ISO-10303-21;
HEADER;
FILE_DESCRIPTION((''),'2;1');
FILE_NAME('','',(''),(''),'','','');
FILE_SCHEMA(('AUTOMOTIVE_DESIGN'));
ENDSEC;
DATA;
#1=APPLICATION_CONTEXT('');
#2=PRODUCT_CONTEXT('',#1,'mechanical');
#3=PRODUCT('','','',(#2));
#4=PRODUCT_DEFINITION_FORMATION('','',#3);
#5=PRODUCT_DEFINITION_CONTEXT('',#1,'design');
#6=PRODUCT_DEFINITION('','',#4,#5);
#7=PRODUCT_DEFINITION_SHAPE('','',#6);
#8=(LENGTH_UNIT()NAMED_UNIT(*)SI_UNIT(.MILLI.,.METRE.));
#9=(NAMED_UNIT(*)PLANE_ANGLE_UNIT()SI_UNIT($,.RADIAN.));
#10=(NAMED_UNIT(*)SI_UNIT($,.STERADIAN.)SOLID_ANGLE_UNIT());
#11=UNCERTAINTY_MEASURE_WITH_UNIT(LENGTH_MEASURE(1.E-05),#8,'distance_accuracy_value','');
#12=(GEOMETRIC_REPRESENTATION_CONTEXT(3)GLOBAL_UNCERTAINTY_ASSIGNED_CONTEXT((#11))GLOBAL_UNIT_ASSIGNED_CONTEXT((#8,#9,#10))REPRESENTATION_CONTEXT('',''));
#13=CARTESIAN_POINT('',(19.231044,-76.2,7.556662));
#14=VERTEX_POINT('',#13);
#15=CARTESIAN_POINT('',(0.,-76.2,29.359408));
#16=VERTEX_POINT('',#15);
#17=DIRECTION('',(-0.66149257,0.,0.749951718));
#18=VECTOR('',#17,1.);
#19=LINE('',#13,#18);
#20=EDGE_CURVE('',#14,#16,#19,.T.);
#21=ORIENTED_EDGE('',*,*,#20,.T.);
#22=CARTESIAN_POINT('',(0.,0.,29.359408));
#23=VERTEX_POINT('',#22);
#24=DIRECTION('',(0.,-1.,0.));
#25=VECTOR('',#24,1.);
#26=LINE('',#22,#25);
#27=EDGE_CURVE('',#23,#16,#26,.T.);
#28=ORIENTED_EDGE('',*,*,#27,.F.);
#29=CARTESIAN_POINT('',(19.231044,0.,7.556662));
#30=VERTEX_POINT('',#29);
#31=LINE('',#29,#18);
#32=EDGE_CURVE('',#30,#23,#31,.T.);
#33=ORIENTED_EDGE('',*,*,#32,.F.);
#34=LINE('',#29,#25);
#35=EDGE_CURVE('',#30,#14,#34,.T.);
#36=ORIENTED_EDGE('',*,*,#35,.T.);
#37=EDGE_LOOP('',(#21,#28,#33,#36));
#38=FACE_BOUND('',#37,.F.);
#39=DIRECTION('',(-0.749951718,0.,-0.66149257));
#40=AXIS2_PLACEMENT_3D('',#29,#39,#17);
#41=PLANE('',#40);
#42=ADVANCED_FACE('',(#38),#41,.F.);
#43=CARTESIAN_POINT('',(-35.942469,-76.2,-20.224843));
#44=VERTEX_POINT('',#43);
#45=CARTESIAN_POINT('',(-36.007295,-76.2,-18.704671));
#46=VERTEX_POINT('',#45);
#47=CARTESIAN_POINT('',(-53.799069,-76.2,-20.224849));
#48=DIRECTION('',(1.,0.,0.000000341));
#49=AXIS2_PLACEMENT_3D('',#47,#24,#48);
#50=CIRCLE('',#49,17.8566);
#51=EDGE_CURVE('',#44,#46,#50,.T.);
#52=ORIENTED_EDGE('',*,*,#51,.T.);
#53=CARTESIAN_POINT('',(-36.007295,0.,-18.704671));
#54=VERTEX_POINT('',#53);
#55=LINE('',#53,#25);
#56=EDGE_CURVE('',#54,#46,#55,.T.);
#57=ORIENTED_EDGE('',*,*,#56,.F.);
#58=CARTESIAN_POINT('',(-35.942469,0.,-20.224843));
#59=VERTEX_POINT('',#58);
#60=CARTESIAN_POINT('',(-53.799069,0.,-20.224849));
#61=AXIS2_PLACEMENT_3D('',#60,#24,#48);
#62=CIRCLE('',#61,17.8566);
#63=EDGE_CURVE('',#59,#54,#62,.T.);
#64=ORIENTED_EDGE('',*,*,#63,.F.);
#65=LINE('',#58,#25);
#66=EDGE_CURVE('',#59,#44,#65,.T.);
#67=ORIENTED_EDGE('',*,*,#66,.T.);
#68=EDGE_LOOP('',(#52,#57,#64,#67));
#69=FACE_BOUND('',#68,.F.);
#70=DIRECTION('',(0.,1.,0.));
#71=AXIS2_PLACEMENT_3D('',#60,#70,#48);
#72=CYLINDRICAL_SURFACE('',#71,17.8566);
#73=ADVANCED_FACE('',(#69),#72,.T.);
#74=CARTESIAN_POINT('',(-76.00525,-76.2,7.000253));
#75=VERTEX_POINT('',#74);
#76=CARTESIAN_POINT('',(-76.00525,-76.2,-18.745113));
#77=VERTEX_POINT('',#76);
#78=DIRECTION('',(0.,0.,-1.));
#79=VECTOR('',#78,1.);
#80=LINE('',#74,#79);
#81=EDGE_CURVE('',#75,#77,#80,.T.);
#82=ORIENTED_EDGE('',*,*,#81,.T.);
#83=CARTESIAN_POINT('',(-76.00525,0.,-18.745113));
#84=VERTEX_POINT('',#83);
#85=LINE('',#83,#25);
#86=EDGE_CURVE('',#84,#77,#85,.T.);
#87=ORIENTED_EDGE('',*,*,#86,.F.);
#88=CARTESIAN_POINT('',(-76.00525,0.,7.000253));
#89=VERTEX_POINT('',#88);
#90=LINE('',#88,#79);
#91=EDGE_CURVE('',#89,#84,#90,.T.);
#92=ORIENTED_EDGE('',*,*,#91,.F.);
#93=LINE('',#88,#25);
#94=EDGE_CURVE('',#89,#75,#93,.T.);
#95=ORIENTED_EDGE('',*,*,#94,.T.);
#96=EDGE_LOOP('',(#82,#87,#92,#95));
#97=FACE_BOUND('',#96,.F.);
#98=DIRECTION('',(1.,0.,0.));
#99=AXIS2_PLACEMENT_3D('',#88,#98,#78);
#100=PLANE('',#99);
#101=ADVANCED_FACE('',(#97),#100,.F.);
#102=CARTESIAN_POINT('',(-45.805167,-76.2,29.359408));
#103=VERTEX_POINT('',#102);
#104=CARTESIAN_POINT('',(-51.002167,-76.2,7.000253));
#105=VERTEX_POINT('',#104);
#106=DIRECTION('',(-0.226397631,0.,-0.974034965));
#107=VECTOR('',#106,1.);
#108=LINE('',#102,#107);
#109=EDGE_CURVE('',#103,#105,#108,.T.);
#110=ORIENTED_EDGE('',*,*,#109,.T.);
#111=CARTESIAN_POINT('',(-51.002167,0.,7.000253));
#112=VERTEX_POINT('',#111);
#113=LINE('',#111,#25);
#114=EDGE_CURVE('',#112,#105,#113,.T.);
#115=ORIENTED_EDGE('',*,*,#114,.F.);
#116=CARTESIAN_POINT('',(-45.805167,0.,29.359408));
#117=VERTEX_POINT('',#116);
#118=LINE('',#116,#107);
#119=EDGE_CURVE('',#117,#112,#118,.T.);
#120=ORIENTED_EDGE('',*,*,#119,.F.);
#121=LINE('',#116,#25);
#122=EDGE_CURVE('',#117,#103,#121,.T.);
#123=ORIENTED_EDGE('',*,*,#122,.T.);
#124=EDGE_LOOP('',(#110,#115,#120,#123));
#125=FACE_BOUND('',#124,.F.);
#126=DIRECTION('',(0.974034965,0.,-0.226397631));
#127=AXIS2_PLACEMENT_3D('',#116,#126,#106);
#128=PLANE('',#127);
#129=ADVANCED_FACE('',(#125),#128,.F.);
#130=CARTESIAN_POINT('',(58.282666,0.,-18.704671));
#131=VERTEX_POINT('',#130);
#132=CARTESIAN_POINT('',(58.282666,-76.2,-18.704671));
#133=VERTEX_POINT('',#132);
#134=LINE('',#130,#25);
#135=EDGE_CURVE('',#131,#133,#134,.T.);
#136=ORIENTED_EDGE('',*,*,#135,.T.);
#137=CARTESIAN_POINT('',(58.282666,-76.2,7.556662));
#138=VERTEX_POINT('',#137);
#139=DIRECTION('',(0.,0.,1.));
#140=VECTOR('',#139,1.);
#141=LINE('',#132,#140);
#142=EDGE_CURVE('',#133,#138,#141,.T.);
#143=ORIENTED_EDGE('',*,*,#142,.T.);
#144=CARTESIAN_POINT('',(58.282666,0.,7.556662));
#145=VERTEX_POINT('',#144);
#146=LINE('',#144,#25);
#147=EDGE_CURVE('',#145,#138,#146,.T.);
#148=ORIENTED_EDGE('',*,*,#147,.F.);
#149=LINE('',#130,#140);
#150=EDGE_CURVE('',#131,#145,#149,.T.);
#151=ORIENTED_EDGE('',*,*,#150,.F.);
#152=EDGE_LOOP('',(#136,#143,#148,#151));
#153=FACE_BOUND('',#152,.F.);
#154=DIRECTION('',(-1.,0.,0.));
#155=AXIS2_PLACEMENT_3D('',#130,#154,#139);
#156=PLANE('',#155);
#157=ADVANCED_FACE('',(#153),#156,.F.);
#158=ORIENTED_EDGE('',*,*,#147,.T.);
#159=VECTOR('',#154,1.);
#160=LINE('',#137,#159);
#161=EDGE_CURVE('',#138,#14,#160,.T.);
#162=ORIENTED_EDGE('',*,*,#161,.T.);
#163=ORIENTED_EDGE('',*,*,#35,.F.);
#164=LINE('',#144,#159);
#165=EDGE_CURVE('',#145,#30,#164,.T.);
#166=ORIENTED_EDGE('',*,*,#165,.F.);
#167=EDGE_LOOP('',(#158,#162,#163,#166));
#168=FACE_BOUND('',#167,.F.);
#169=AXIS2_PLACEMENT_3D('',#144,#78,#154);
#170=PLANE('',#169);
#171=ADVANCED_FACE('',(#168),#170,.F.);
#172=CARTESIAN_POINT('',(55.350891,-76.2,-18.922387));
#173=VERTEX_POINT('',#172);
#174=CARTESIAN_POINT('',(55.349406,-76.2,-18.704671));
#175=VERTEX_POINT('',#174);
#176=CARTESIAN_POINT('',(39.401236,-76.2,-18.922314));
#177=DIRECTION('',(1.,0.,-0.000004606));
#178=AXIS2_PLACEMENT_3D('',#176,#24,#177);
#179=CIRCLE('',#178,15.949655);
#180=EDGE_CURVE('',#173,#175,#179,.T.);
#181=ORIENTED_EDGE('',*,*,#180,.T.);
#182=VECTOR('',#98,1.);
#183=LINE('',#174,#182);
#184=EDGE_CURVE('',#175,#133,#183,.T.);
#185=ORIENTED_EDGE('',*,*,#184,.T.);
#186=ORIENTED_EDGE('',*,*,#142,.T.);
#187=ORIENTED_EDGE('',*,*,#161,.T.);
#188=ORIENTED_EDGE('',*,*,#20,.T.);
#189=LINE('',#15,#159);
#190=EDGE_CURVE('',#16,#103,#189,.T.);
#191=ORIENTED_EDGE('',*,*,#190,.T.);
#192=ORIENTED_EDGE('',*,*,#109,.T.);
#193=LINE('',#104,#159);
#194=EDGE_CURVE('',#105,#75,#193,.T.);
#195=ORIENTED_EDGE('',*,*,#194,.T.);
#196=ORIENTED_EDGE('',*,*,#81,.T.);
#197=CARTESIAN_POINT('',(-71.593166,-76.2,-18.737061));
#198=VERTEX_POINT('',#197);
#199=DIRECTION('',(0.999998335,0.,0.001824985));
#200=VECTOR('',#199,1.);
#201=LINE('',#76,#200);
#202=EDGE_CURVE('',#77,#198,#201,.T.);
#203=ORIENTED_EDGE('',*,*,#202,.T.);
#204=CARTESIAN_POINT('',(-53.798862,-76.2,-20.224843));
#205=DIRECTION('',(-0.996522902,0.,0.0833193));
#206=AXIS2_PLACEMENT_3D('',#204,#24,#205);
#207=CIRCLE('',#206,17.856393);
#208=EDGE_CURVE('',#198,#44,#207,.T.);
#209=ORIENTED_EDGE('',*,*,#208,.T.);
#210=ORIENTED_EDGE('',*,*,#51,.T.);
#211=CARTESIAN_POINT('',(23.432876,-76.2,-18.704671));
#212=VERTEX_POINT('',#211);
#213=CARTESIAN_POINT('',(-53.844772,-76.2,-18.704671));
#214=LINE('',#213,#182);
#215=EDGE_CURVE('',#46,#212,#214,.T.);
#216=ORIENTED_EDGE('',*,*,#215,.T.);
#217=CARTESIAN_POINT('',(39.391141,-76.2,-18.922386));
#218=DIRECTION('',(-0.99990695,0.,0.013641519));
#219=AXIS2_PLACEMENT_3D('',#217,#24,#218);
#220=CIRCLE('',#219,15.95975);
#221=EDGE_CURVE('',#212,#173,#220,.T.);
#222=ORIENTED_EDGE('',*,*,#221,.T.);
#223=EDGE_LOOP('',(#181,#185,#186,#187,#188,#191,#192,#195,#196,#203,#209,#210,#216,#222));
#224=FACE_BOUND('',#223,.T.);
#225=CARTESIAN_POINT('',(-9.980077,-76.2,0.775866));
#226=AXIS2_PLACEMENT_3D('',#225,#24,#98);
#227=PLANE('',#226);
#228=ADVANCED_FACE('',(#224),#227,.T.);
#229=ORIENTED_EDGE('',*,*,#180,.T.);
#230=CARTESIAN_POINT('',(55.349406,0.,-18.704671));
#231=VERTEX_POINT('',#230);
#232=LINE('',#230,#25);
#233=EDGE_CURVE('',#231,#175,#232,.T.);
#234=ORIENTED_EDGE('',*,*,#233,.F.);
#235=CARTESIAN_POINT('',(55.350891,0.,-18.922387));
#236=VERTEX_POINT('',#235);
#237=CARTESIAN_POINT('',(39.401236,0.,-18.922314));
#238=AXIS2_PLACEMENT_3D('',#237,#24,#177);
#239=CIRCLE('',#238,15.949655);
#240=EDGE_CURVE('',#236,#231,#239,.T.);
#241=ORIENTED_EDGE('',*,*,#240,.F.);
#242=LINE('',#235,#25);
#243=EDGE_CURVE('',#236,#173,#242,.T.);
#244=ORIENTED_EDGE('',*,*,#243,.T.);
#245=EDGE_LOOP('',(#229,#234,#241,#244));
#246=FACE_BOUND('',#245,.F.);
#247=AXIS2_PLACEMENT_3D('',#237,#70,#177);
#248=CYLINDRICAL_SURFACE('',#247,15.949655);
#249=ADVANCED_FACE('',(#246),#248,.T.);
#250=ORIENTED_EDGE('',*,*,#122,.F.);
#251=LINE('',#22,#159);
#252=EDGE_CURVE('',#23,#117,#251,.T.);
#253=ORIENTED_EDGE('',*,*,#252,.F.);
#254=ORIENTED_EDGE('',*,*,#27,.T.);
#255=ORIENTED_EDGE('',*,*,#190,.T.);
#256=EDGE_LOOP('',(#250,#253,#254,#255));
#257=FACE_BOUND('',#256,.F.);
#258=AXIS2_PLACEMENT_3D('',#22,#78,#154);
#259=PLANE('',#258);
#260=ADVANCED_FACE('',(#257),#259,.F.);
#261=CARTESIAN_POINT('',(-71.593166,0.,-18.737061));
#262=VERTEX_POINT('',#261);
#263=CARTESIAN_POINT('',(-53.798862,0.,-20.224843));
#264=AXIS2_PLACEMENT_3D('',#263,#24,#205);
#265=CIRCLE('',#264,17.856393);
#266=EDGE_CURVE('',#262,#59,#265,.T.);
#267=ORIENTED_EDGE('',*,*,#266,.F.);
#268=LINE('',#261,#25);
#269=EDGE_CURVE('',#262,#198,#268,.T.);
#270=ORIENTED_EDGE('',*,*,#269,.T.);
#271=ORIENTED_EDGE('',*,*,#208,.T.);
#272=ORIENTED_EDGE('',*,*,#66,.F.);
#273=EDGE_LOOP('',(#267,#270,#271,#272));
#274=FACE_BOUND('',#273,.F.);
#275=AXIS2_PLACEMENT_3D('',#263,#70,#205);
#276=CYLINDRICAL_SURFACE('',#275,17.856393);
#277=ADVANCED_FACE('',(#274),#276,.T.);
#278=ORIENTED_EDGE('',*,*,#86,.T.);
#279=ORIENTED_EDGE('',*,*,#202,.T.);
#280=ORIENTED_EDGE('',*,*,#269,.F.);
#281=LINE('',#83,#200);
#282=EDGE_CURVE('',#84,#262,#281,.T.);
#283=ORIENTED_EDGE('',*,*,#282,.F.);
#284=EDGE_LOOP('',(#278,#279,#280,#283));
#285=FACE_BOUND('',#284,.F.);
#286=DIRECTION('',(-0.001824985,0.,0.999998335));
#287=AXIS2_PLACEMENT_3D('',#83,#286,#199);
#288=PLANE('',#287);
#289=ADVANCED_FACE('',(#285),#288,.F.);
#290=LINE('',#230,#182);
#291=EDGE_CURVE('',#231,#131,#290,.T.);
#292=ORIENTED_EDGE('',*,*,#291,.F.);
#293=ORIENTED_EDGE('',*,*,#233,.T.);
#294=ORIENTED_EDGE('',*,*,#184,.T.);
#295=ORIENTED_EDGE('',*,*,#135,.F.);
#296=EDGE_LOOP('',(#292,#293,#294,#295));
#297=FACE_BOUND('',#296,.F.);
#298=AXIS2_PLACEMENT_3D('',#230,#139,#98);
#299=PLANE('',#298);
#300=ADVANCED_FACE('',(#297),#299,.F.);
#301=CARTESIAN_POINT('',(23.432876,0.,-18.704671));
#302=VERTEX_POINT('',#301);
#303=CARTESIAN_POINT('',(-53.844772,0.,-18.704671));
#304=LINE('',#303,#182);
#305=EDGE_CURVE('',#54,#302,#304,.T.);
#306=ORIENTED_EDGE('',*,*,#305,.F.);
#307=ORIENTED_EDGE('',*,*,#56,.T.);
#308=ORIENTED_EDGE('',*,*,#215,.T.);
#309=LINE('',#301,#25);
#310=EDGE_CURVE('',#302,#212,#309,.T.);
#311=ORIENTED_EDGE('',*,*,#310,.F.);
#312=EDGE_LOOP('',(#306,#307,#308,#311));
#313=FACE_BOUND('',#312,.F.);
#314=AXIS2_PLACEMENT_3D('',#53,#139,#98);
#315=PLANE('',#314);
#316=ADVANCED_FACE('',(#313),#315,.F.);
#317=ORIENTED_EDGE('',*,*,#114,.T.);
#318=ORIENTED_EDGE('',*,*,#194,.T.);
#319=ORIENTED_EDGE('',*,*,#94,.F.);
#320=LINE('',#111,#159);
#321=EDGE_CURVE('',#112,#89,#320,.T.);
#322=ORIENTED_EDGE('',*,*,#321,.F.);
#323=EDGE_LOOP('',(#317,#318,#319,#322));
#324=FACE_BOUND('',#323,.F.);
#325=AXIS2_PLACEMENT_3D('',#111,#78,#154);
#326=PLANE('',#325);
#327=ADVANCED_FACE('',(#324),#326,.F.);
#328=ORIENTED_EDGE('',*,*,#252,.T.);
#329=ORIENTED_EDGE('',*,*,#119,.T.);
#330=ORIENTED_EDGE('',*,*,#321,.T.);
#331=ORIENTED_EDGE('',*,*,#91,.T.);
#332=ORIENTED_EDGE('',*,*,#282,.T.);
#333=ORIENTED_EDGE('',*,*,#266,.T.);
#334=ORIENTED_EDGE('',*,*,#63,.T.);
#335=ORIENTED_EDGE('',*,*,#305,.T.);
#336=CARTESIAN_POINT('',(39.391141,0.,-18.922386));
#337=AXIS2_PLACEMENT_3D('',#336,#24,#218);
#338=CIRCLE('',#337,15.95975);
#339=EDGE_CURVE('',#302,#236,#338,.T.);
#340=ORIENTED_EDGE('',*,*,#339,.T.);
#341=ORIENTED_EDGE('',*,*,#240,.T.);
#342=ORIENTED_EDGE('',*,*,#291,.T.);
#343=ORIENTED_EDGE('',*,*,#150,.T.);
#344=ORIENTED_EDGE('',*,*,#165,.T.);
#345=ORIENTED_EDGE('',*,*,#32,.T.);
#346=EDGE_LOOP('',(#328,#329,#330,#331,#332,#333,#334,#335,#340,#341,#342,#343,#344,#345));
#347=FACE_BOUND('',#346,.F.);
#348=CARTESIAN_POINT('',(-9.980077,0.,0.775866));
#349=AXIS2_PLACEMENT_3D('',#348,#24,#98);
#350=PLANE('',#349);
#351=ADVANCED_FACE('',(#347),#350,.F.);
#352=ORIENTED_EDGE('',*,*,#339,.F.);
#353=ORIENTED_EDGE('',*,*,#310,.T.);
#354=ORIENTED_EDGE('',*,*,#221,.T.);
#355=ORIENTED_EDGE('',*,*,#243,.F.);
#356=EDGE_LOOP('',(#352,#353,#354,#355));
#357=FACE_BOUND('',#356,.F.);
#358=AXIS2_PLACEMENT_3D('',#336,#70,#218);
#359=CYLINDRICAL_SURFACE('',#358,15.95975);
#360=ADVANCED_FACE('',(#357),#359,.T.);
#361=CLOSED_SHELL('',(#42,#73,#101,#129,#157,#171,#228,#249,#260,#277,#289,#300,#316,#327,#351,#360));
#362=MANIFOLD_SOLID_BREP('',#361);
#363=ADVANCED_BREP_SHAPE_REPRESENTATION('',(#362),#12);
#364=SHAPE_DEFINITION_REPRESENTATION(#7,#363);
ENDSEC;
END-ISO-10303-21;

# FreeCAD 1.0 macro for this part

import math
import FreeCAD as App
import Part
import Sketcher
Q = App.Units.Quantity

doc = App.newDocument("Part")
body = doc.addObject("PartDesign::Body", "Body")

sketch1 = body.newObject("Sketcher::SketchObject", "Sketch")
sketch1.AttachmentSupport = (doc.getObject("XZ_Plane"), [""])
sketch1.MapMode = "FlatFace"
sketch1.addGeometry([
    Part.LineSegment(App.Vector(55.349406, -18.704671, 0), App.Vector(58.282666, -18.704671, 0)),
    Part.LineSegment(App.Vector(58.282666, -18.704671, 0), App.Vector(58.282666, 7.556662, 0)),
    Part.LineSegment(App.Vector(58.282666, 7.556662, 0), App.Vector(19.231044, 7.556662, 0)),
    Part.LineSegment(App.Vector(19.231044, 7.556662, 0), App.Vector(0, 29.359408, 0)),
    Part.LineSegment(App.Vector(0, 29.359408, 0), App.Vector(-45.805167, 29.359408, 0)),
    Part.LineSegment(App.Vector(-45.805167, 29.359408, 0), App.Vector(-51.002167, 7.000253, 0)),
    Part.LineSegment(App.Vector(-51.002167, 7.000253, 0), App.Vector(-76.00525, 7.000253, 0)),
    Part.LineSegment(App.Vector(-76.00525, 7.000253, 0), App.Vector(-76.00525, -18.745113, 0)),
    Part.LineSegment(App.Vector(-76.00525, -18.745113, 0), App.Vector(-71.593166, -18.737061, 0)),
    Part.ArcOfCircle(Part.Circle(App.Vector(-53.798862, -20.224843, 0), App.Vector(0, 0, 1), 17.856393), math.radians(175.220615), math.radians(360)),
    Part.ArcOfCircle(Part.Circle(App.Vector(-53.799069, -20.224849, 0), App.Vector(0, 0, 1), 17.8566), math.radians(0.00002), math.radians(4.883648)),
    Part.LineSegment(App.Vector(-36.007295, -18.704671, 0), App.Vector(23.432876, -18.704671, 0)),
    Part.ArcOfCircle(Part.Circle(App.Vector(39.391141, -18.922386, 0), App.Vector(0, 0, 1), 15.95975), math.radians(179.218374), math.radians(359.999997)),
    Part.ArcOfCircle(Part.Circle(App.Vector(39.401236, -18.922314, 0), App.Vector(0, 0, 1), 15.949655), math.radians(-0.000264), math.radians(0.781859)),
], False)
sketch1.addConstraint([
    Sketcher.Constraint("Coincident", 0, 2, 1, 1),
    Sketcher.Constraint("Coincident", 1, 2, 2, 1),
    Sketcher.Constraint("Coincident", 2, 2, 3, 1),
    Sketcher.Constraint("Coincident", 3, 2, 4, 1),
    Sketcher.Constraint("Coincident", 4, 2, 5, 1),
    Sketcher.Constraint("Coincident", 5, 2, 6, 1),
    Sketcher.Constraint("Coincident", 6, 2, 7, 1),
    Sketcher.Constraint("Coincident", 7, 2, 8, 1),
    Sketcher.Constraint("Coincident", 8, 2, 9, 1),
    Sketcher.Constraint("Tangent", 9, 2, 10, 1),
    Sketcher.Constraint("Coincident", 10, 2, 11, 1),
    Sketcher.Constraint("Coincident", 11, 2, 12, 1),
    Sketcher.Constraint("Coincident", 12, 2, 13, 1),
    Sketcher.Constraint("Coincident", 13, 2, 0, 1),
    Sketcher.Constraint("Horizontal", 0),
    Sketcher.Constraint("Vertical", 1),
    Sketcher.Constraint("Horizontal", 2),
    Sketcher.Constraint("Horizontal", 4),
    Sketcher.Constraint("Horizontal", 6),
    Sketcher.Constraint("Vertical", 7),
    Sketcher.Constraint("Horizontal", 11),
    Sketcher.Constraint("PointOnObject", 3, 2, -2),
    Sketcher.Constraint("Horizontal", 0, 2, 10, 2),
    Sketcher.Constraint("Radius", 10, 17.8566),
    Sketcher.Constraint("Radius", 12, 15.95975),
    Sketcher.Constraint("Radius", 9, 17.856393),
    Sketcher.Constraint("Radius", 13, 15.949655),
    Sketcher.Constraint("Distance", 3, 29.0722),
    Sketcher.Constraint("DistanceX", 0, 1, 0, 2, 2.93326),
    Sketcher.Constraint("DistanceX", 2, 2, 2, 1, 39.051622),
    Sketcher.Constraint("DistanceX", 11, 1, 11, 2, 59.440171),
    Sketcher.Constraint("DistanceX", 10, 3, 4, 2, 7.993902),
    Sketcher.Constraint("DistanceX", 5, 2, 4, 2, 5.197),
    Sketcher.Constraint("DistanceX", 8, 2, 5, 2, 20.590999),
    Sketcher.Constraint("Distance", 8, 4.412091),
    Sketcher.Constraint("DistanceX", 4, 2, 4, 1, 45.805167),
    Sketcher.Constraint("DistanceY", 1, 1, 1, 2, 26.261333),
    Sketcher.Constraint("DistanceY", 7, 2, 7, 1, 25.745366),
    Sketcher.Constraint("DistanceY", 10, 3, -1, 1, 20.224849),
    Sketcher.Constraint("DistanceX", -1, 1, 12, 3, 39.391141),
    Sketcher.Constraint("DistanceY", 0, 2, -1, 1, 18.704671),
    Sketcher.Constraint("DistanceY", 9, 3, 13, 3, 1.30253),
    Sketcher.Constraint("DistanceY", 5, 2, 2, 2, 0.556409),
    Sketcher.Constraint("DistanceY", 9, 2, 8, 2, 1.487782),
    Sketcher.Constraint("DistanceY", 12, 2, 1, 2, 26.479049),
])
pad1 = body.newObject("PartDesign::Pad", "Pad")
pad1.Profile = sketch1
pad1.Length = Q("3 in")

doc.recompute()
